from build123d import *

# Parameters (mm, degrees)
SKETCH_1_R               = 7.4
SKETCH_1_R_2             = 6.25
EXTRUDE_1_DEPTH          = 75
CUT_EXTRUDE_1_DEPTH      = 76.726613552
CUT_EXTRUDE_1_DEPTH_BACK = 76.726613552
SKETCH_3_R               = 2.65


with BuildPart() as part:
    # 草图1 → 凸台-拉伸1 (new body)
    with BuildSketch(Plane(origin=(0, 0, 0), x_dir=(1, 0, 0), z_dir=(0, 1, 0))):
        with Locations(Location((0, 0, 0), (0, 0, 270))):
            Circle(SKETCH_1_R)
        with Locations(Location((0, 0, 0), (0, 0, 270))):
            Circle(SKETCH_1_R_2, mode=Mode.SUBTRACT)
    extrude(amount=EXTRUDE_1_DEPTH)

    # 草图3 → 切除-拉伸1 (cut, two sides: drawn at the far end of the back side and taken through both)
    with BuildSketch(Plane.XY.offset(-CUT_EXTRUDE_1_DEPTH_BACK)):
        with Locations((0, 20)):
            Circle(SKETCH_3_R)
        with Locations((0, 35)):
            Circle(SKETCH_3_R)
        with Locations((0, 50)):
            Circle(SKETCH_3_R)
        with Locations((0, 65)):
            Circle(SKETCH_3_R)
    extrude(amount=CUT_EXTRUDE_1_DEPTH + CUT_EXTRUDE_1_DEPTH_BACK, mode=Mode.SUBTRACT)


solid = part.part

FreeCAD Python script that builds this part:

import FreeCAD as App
import Part
import Sketcher
Q = App.Units.Quantity

doc = App.newDocument("Part")
body = doc.addObject("PartDesign::Body", "Body")

sketch1 = body.newObject("Sketcher::SketchObject", "Sketch")
sketch1.AttachmentSupport = (doc.getObject("XZ_Plane"), [""])
sketch1.MapMode = "FlatFace"
sketch1.addGeometry([
    Part.Circle(App.Vector(0, 0, 0), App.Vector(0, 0, 1), 7),
    Part.Circle(App.Vector(0, 0, 0), App.Vector(0, 0, 1), 6),
], False)
sketch1.addConstraint([
    Sketcher.Constraint("Coincident", 0, 3, -1, 1),
    Sketcher.Constraint("Coincident", 1, 3, -1, 1),
    Sketcher.Constraint("Diameter", 0, Q("14.8 mm")),
    Sketcher.Constraint("Diameter", 1, Q("12.5 mm")),
])
pad1 = body.newObject("PartDesign::Pad", "Pad")
pad1.Profile = sketch1
pad1.Length = 75
pad1.Reversed = True

sketch2 = body.newObject("Sketcher::SketchObject", "Sketch001")
sketch2.AttachmentSupport = (doc.getObject("XY_Plane"), [""])
sketch2.MapMode = "FlatFace"
sketch2.addGeometry([
    Part.Circle(App.Vector(0, 20, 0), App.Vector(0, 0, 1), 2.6),
    Part.Circle(App.Vector(0, 35, 0), App.Vector(0, 0, 1), 2.6),
    Part.Circle(App.Vector(0, 50, 0), App.Vector(0, 0, 1), 2.6),
    Part.Circle(App.Vector(0, 65, 0), App.Vector(0, 0, 1), 2.6),
], False)
sketch2.addConstraint([
    Sketcher.Constraint("Equal", 0, 1),
    Sketcher.Constraint("Equal", 1, 2),
    Sketcher.Constraint("Equal", 2, 3),
    Sketcher.Constraint("PointOnObject", 0, 3, -2),
    Sketcher.Constraint("PointOnObject", 1, 3, -2),
    Sketcher.Constraint("PointOnObject", 2, 3, -2),
    Sketcher.Constraint("PointOnObject", 3, 3, -2),
    Sketcher.Constraint("Diameter", 0, Q("5.3 mm")),
    Sketcher.Constraint("DistanceY", -1, 1, 0, 3, Q("20 mm")),
    Sketcher.Constraint("DistanceY", -1, 1, 1, 3, Q("35 mm")),
    Sketcher.Constraint("DistanceY", -1, 1, 2, 3, Q("50 mm")),
    Sketcher.Constraint("DistanceY", -1, 1, 3, 3, Q("65 mm")),
])
pocket1 = body.newObject("PartDesign::Pocket", "Pocket")
pocket1.Profile = sketch2
pocket1.Type = "ThroughAll"
pocket1.Midplane = True

doc.recompute()
